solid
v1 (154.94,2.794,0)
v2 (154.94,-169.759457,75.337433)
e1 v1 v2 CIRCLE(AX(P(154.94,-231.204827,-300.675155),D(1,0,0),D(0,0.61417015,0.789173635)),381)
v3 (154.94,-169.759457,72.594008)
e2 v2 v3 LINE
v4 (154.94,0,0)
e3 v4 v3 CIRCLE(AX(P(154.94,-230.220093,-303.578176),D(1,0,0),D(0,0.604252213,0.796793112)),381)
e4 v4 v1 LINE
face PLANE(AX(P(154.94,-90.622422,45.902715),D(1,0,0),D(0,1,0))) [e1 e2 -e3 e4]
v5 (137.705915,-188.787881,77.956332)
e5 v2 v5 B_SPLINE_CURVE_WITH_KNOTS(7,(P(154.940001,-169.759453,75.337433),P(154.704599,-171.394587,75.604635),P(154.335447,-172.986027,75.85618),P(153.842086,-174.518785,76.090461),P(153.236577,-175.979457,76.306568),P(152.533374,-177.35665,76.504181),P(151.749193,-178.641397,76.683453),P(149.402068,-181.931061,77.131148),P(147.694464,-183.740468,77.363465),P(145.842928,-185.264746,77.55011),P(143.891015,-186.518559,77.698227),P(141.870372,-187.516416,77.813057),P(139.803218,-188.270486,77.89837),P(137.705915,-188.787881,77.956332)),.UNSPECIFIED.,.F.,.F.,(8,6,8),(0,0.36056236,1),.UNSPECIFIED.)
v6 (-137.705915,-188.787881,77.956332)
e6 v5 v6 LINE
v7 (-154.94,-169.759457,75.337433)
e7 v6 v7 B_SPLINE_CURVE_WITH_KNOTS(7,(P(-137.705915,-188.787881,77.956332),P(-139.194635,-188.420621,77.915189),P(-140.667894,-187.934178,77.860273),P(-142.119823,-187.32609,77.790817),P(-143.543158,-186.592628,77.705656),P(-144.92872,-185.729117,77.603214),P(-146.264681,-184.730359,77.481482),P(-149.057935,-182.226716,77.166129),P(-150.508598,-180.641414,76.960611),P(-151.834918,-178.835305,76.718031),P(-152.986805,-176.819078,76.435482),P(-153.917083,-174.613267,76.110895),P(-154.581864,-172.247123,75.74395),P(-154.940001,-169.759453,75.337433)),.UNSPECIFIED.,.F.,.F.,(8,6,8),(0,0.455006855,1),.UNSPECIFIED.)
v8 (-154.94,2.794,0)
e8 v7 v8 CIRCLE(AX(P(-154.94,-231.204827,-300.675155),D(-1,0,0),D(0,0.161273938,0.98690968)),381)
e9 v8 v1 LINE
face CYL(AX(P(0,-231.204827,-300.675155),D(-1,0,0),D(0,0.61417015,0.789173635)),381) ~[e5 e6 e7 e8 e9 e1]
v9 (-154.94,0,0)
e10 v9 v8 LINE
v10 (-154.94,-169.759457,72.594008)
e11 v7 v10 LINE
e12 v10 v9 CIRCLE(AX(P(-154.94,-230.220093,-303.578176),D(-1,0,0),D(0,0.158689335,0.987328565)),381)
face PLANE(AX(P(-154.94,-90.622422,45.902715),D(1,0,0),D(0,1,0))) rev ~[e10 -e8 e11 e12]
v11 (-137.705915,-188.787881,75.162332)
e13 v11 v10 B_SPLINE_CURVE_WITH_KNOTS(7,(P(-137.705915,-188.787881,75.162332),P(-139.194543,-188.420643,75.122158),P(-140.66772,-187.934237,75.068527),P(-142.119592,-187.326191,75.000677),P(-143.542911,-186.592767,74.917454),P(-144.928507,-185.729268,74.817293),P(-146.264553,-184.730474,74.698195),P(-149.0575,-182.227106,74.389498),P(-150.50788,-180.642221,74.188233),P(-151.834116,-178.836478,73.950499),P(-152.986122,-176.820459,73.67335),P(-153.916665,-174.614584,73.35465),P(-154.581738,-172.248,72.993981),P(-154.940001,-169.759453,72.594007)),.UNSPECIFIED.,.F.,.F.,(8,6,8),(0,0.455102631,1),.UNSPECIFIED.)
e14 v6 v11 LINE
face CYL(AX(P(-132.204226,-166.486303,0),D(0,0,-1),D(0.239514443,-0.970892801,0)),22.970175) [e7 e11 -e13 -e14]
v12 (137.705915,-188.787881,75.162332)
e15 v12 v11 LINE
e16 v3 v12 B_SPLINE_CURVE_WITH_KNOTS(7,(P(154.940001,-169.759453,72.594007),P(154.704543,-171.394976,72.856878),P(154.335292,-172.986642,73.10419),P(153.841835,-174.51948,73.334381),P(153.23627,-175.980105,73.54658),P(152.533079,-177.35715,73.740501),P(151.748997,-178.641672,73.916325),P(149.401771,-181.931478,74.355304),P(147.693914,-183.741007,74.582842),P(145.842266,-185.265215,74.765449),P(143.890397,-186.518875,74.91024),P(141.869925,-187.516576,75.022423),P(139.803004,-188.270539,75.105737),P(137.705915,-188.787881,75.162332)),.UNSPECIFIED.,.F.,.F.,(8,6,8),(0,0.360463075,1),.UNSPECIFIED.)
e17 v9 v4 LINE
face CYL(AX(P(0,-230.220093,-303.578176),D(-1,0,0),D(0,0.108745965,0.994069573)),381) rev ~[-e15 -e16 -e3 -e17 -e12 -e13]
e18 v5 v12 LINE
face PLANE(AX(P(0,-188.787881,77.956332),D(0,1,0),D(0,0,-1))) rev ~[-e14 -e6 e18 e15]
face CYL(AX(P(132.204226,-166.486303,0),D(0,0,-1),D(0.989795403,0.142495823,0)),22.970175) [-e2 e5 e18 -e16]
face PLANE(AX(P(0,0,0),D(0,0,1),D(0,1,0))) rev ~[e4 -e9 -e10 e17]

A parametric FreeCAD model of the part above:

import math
import FreeCAD as App
import Part
import Sketcher
Q = App.Units.Quantity

doc = App.newDocument("Part")
body = doc.addObject("PartDesign::Body", "Body")

sketch1 = body.newObject("Sketcher::SketchObject", "Sketch")
sketch1.AttachmentSupport = (doc.getObject("YZ_Plane"), [""])
sketch1.MapMode = "FlatFace"
sketch1.addGeometry([
    Part.ArcOfCircle(Part.Circle(App.Vector(-230.2, -303.6, 0), App.Vector(0, 0, 1), 381), math.radians(53), math.radians(84)),
    Part.LineSegment(App.Vector(0, 0, 0), App.Vector(2.8, 0, 0)),
    Part.ArcOfCircle(Part.Circle(App.Vector(-231.2, -300.7, 0), App.Vector(0, 0, 1), 381), math.radians(52), math.radians(84)),
    Part.LineSegment(App.Vector(-188.8, 78, 0), App.Vector(-188.8, 75.2, 0)),
], False)
sketch1.addConstraint([
    Sketcher.Constraint("Coincident", 0, 1, 1, 1),
    Sketcher.Constraint("Coincident", 1, 2, 2, 1),
    Sketcher.Constraint("Coincident", 2, 2, 3, 1),
    Sketcher.Constraint("Coincident", 3, 2, 0, 2),
    Sketcher.Constraint("Horizontal", 1),
    Sketcher.Constraint("Vertical", 3),
    Sketcher.Constraint("Coincident", 0, 1, -1, 1),
    Sketcher.Constraint("Equal", 0, 2),
    Sketcher.Constraint("Equal", 1, 3),
    Sketcher.Constraint("Radius", 0, Q("15 in")),
    Sketcher.Constraint("DistanceX", 1, 1, 1, 2, Q("0.11 in")),
    Sketcher.Constraint("DistanceY", -1, 1, 2, 2, Q("77.956332 mm")),
    Sketcher.Constraint("DistanceX", 3, 2, -1, 1, Q("188.787881 mm")),
])
pad1 = body.newObject("PartDesign::Pad", "Pad")
pad1.Profile = sketch1
pad1.Type = "TwoLengths"
pad1.Length = Q("6.1 in")
pad1.Length2 = Q("6.1 in")
pad1.Reversed = True

sketch2 = body.newObject("Sketcher::SketchObject", "Sketch001")
sketch2.AttachmentSupport = (doc.getObject("XY_Plane"), [""])
sketch2.MapMode = "FlatFace"
sketch2.addGeometry([
    Part.ArcOfCircle(Part.Circle(App.Vector(-132, -166, 0), App.Vector(0, 0, 1), 23), math.radians(172), math.radians(284)),
    Part.LineSegment(App.Vector(-155, -163, 0), App.Vector(-161, -163, 0)),
    Part.LineSegment(App.Vector(-161, -163, 0), App.Vector(-161, -197, 0)),
    Part.LineSegment(App.Vector(-161, -197, 0), App.Vector(-121, -197, 0)),
    Part.LineSegment(App.Vector(-121, -197, 0), App.Vector(-127, -189, 0)),
    Part.LineSegment(App.Vector(127, -189, 0), App.Vector(121, -197, 0)),
    Part.LineSegment(App.Vector(121, -197, 0), App.Vector(161, -197, 0)),
    Part.LineSegment(App.Vector(161, -197, 0), App.Vector(161, -163, 0)),
    Part.LineSegment(App.Vector(161, -163, 0), App.Vector(155, -163, 0)),
    Part.ArcOfCircle(Part.Circle(App.Vector(132, -166, 0), App.Vector(0, 0, 1), 23), math.radians(-104), math.radians(8)),
], False)
sketch2.addConstraint([
    Sketcher.Constraint("Coincident", 0, 1, 1, 1),
    Sketcher.Constraint("Coincident", 1, 2, 2, 1),
    Sketcher.Constraint("Coincident", 2, 2, 3, 1),
    Sketcher.Constraint("Coincident", 3, 2, 4, 1),
    Sketcher.Constraint("Coincident", 4, 2, 0, 2),
    Sketcher.Constraint("Coincident", 5, 2, 6, 1),
    Sketcher.Constraint("Coincident", 6, 2, 7, 1),
    Sketcher.Constraint("Coincident", 7, 2, 8, 1),
    Sketcher.Constraint("Coincident", 8, 2, 9, 2),
    Sketcher.Constraint("Coincident", 9, 1, 5, 1),
    Sketcher.Constraint("Horizontal", 1),
    Sketcher.Constraint("Vertical", 2),
    Sketcher.Constraint("Horizontal", 3),
    Sketcher.Constraint("Horizontal", 6),
    Sketcher.Constraint("Vertical", 7),
    Sketcher.Constraint("Horizontal", 8),
    Sketcher.Constraint("Equal", 0, 9),
    Sketcher.Constraint("Symmetric", 0, 3, 9, 3, -2),
    Sketcher.Constraint("Symmetric", 3, 2, 5, 2, -2),
    Sketcher.Constraint("Symmetric", 1, 2, 7, 2, -2),
    Sketcher.Constraint("Horizontal", 4, 2, 9, 1),
    Sketcher.Constraint("DistanceX", 0, 1, -1, 1, Q("6.1 in")),
    Sketcher.Constraint("Radius", 0, Q("22.970175 mm")),
    Sketcher.Constraint("DistanceX", 1, 2, 1, 1, Q("6.40274 mm")),
    Sketcher.Constraint("DistanceX", 4, 2, 3, 2, Q("5.937201 mm")),
    Sketcher.Constraint("DistanceX", 3, 1, 3, 2, Q("40.577404 mm")),
    Sketcher.Constraint("DistanceY", 2, 2, 2, 1, Q("33.720093 mm")),
    Sketcher.Constraint("DistanceY", 0, 1, -1, 1, Q("163.213149 mm")),
    Sketcher.Constraint("DistanceY", 4, 2, -1, 1, Q("188.787881 mm")),
])
pocket1 = body.newObject("PartDesign::Pocket", "Pocket")
pocket1.Profile = sketch2
pocket1.Length = Q("7.33 in")
pocket1.Reversed = True

doc.recompute()
